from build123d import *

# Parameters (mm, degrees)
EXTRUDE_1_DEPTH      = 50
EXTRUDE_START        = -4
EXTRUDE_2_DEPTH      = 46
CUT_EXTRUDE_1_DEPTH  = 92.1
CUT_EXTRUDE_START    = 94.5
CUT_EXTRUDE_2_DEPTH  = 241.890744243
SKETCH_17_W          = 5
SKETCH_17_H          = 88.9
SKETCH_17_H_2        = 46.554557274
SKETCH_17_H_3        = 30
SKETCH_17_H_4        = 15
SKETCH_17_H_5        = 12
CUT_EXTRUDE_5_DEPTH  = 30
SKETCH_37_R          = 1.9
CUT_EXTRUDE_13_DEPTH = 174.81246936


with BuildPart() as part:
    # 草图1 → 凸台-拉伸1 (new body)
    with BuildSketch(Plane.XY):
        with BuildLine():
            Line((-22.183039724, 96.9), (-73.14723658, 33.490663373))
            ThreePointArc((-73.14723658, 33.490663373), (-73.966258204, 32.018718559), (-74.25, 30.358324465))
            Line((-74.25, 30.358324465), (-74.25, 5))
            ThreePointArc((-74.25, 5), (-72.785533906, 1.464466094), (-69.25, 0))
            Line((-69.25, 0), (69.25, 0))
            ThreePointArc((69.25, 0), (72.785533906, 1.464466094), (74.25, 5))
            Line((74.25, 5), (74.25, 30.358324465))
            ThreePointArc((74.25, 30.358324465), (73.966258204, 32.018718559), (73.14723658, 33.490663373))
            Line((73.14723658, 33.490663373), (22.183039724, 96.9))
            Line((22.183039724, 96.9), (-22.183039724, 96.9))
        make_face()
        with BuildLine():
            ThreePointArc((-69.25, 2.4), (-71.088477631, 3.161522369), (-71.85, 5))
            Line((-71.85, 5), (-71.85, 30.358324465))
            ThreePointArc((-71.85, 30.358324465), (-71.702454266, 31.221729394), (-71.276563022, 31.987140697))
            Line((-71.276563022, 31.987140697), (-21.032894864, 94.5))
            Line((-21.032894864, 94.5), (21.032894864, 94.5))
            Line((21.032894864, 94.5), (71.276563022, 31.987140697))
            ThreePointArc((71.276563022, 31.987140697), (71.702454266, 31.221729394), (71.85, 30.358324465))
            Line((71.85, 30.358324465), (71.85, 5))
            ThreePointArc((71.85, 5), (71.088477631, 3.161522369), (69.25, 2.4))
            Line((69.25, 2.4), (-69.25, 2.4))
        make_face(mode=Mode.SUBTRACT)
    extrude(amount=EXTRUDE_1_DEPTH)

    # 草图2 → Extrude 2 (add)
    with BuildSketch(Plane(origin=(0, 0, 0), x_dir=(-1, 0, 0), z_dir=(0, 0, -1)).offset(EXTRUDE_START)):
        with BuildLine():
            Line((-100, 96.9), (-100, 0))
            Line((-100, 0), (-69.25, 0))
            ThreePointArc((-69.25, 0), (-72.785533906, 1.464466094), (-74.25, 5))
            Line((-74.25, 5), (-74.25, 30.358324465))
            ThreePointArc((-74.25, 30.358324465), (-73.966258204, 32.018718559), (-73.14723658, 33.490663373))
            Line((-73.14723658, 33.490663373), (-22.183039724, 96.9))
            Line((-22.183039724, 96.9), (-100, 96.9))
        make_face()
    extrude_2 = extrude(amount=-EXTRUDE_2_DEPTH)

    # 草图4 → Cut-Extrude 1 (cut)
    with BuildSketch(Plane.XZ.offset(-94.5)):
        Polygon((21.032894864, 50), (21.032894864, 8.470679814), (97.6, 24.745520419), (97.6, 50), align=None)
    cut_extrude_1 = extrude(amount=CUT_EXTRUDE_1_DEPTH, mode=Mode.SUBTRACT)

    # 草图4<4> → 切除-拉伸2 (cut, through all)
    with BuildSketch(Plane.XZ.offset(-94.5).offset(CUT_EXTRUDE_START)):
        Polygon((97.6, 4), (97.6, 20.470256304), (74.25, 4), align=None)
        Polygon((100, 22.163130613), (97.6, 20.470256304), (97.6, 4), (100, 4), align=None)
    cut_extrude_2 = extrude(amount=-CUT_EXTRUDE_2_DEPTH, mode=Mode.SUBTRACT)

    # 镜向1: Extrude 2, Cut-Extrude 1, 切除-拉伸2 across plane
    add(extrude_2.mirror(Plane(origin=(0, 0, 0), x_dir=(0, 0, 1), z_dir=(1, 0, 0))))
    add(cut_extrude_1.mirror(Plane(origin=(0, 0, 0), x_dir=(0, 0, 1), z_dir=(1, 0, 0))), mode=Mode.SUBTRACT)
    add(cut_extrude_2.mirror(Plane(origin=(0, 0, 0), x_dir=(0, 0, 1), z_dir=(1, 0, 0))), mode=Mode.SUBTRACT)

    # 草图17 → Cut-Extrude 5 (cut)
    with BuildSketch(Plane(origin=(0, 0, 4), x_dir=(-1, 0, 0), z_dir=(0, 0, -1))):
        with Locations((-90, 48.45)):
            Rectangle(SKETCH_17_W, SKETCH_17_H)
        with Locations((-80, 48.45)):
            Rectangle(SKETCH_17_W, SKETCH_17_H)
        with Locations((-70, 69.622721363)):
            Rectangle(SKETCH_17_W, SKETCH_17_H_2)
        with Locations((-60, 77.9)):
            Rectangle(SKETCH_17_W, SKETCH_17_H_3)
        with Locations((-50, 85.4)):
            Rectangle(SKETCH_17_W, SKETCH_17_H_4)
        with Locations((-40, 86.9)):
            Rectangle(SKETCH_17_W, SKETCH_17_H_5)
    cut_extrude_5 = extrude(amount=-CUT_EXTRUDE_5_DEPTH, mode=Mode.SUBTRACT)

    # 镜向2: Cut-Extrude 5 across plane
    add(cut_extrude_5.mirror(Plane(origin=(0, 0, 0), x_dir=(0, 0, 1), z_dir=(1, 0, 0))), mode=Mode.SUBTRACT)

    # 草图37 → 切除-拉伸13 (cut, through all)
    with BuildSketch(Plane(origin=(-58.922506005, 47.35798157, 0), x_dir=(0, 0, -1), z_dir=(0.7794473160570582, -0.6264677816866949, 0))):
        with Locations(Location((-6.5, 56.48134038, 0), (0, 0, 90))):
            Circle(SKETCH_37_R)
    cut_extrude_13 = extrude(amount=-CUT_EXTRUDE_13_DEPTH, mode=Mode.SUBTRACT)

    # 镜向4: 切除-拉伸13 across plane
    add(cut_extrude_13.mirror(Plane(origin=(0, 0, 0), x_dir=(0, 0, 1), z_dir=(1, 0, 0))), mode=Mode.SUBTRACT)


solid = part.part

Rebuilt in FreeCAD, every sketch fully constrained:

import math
import FreeCAD as App
import Part
import Sketcher
Q = App.Units.Quantity


def add_polygon(sketch, points):
    """Adds a closed chain of lines whose ends are joined by coincident constraints."""
    first, n = sketch.GeometryCount, len(points)
    for a, b in zip(points, points[1:] + points[:1]):
        sketch.addGeometry(Part.LineSegment(App.Vector(*a, 0), App.Vector(*b, 0)), False)
    for i in range(n):
        sketch.addConstraint(Sketcher.Constraint("Coincident", first + i, 2, first + (i + 1) % n, 1))

doc = App.newDocument("Part")
params = doc.addObject("Spreadsheet::Sheet", "Params")
for row, (alias, value) in enumerate([
    ("sketch1_radius", "5 mm"),
    ("sketch1_radius2", "2.6 mm"),
    ("sketch1_width", "138.5 mm"),
    ("pad1_length", "50 mm"),
    ("sketch2_radius", "5 mm"),
    ("sketch2_height", "96.9 mm"),
    ("sketch2_width", "30.75 mm"),
    ("pad2_length", "46 mm"),
    ("pocket1_length", "92.1 mm"),
    ("sketch4_width", "25.75 mm"),
    ("sketch5_width", "5 mm"),
    ("sketch5_height", "30 mm"),
    ("sketch5_height2", "15 mm"),
    ("sketch5_height3", "12 mm"),
    ("sketch5_height4", "88.9 mm"),
    ("pocket3_length", "30 mm"),
    ("sketch6_diameter", "3.8 mm"),
], start=1):
    params.set(f"A{row}", alias)
    params.set(f"B{row}", "=" + value)
    params.setAlias(f"B{row}", alias)

body = doc.addObject("PartDesign::Body", "Body")

# Sketch on XY plane
sketch1 = doc.addObject("Sketcher::SketchObject", "Sketch")
body.addObject(sketch1)
sketch1.AttachmentSupport = (doc.XY_Plane, [""])
sketch1.MapMode = "FlatFace"
sketch1.addGeometry(Part.LineSegment(App.Vector(-22.2, 96.9, 0), App.Vector(-73.1, 33.5, 0)), False)
sketch1.addGeometry(Part.ArcOfCircle(Part.Circle(App.Vector(-69.2, 30.4, 0), App.Vector(0, 0, 1), 5), math.radians(141), math.radians(180)), False)
sketch1.addGeometry(Part.LineSegment(App.Vector(-74.2, 30.4, 0), App.Vector(-74.2, 5, 0)), False)
sketch1.addGeometry(Part.ArcOfCircle(Part.Circle(App.Vector(-69.2, 5, 0), App.Vector(0, 0, 1), 5), math.radians(180), math.radians(270)), False)
sketch1.addGeometry(Part.LineSegment(App.Vector(-69.2, 0, 0), App.Vector(69.2, 0, 0)), False)
sketch1.addGeometry(Part.ArcOfCircle(Part.Circle(App.Vector(69.2, 5, 0), App.Vector(0, 0, 1), 5), math.radians(-90), math.radians(0)), False)
sketch1.addGeometry(Part.LineSegment(App.Vector(74.2, 5, 0), App.Vector(74.2, 30.4, 0)), False)
sketch1.addGeometry(Part.ArcOfCircle(Part.Circle(App.Vector(69.2, 30.4, 0), App.Vector(0, 0, 1), 5), math.radians(0), math.radians(39)), False)
sketch1.addGeometry(Part.LineSegment(App.Vector(73.1, 33.5, 0), App.Vector(22.2, 96.9, 0)), False)
sketch1.addGeometry(Part.LineSegment(App.Vector(22.2, 96.9, 0), App.Vector(-22.2, 96.9, 0)), False)
sketch1.addGeometry(Part.LineSegment(App.Vector(69.2, 2.4, 0), App.Vector(-69.2, 2.4, 0)), False)
sketch1.addGeometry(Part.ArcOfCircle(Part.Circle(App.Vector(-69.2, 5, 0), App.Vector(0, 0, 1), 2.6), math.radians(180), math.radians(270)), False)
sketch1.addGeometry(Part.LineSegment(App.Vector(-71.8, 5, 0), App.Vector(-71.8, 30.4, 0)), False)
sketch1.addGeometry(Part.ArcOfCircle(Part.Circle(App.Vector(-69.2, 30.4, 0), App.Vector(0, 0, 1), 2.6), math.radians(141), math.radians(180)), False)
sketch1.addGeometry(Part.LineSegment(App.Vector(-71.3, 32, 0), App.Vector(-21, 94.5, 0)), False)
sketch1.addGeometry(Part.LineSegment(App.Vector(-21, 94.5, 0), App.Vector(21, 94.5, 0)), False)
sketch1.addGeometry(Part.LineSegment(App.Vector(21, 94.5, 0), App.Vector(71.3, 32, 0)), False)
sketch1.addGeometry(Part.ArcOfCircle(Part.Circle(App.Vector(69.2, 30.4, 0), App.Vector(0, 0, 1), 2.6), math.radians(0), math.radians(39)), False)
sketch1.addGeometry(Part.LineSegment(App.Vector(71.8, 30.4, 0), App.Vector(71.8, 5, 0)), False)
sketch1.addGeometry(Part.ArcOfCircle(Part.Circle(App.Vector(69.2, 5, 0), App.Vector(0, 0, 1), 2.6), math.radians(-90), math.radians(0)), False)
sketch1.addConstraint(Sketcher.Constraint("Tangent", 0, 2, 1, 1))
sketch1.addConstraint(Sketcher.Constraint("Tangent", 1, 2, 2, 1))
sketch1.addConstraint(Sketcher.Constraint("Tangent", 2, 2, 3, 1))
sketch1.addConstraint(Sketcher.Constraint("Tangent", 3, 2, 4, 1))
sketch1.addConstraint(Sketcher.Constraint("Tangent", 4, 2, 5, 1))
sketch1.addConstraint(Sketcher.Constraint("Tangent", 5, 2, 6, 1))
sketch1.addConstraint(Sketcher.Constraint("Tangent", 6, 2, 7, 1))
sketch1.addConstraint(Sketcher.Constraint("Tangent", 7, 2, 8, 1))
sketch1.addConstraint(Sketcher.Constraint("Coincident", 8, 2, 9, 1))
sketch1.addConstraint(Sketcher.Constraint("Coincident", 9, 2, 0, 1))
sketch1.addConstraint(Sketcher.Constraint("Tangent", 10, 2, 11, 2))
sketch1.addConstraint(Sketcher.Constraint("Tangent", 11, 1, 12, 1))
sketch1.addConstraint(Sketcher.Constraint("Tangent", 12, 2, 13, 2))
sketch1.addConstraint(Sketcher.Constraint("Tangent", 13, 1, 14, 1))
sketch1.addConstraint(Sketcher.Constraint("Coincident", 14, 2, 15, 1))
sketch1.addConstraint(Sketcher.Constraint("Coincident", 15, 2, 16, 1))
sketch1.addConstraint(Sketcher.Constraint("Tangent", 16, 2, 17, 2))
sketch1.addConstraint(Sketcher.Constraint("Tangent", 17, 1, 18, 1))
sketch1.addConstraint(Sketcher.Constraint("Tangent", 18, 2, 19, 2))
sketch1.addConstraint(Sketcher.Constraint("Tangent", 19, 1, 10, 1))
sketch1.addConstraint(Sketcher.Constraint("Vertical", 2))
sketch1.addConstraint(Sketcher.Constraint("Horizontal", 4))
sketch1.addConstraint(Sketcher.Constraint("Vertical", 6))
sketch1.addConstraint(Sketcher.Constraint("Horizontal", 9))
sketch1.addConstraint(Sketcher.Constraint("Horizontal", 10))
sketch1.addConstraint(Sketcher.Constraint("Vertical", 12))
sketch1.addConstraint(Sketcher.Constraint("Horizontal", 15))
sketch1.addConstraint(Sketcher.Constraint("Vertical", 18))
sketch1.addConstraint(Sketcher.Constraint("Coincident", 11, 3, 3, 3))
sketch1.addConstraint(Sketcher.Constraint("Coincident", 13, 3, 1, 3))
sketch1.addConstraint(Sketcher.Constraint("Coincident", 17, 3, 7, 3))
sketch1.addConstraint(Sketcher.Constraint("Coincident", 19, 3, 5, 3))
sketch1.addConstraint(Sketcher.Constraint("Equal", 1, 3))
sketch1.addConstraint(Sketcher.Constraint("Equal", 3, 5))
sketch1.addConstraint(Sketcher.Constraint("Equal", 5, 7))
sketch1.addConstraint(Sketcher.Constraint("Symmetric", 3, 2, 4, 2, -1, 1))
sketch1.addConstraint(Sketcher.Constraint("Symmetric", 0, 2, 7, 2, -2))
sketch1.addConstraint(Sketcher.Constraint("Parallel", 0, 14))
sketch1.addConstraint(Sketcher.Constraint("Parallel", 8, 16))
sketch1.addConstraint(Sketcher.Constraint("Radius", 1, 5.0))
sketch1.addConstraint(Sketcher.Constraint("Radius", 11, 2.6))
sketch1.addConstraint(Sketcher.Constraint("DistanceX", 4, 1, 4, 2, 138.5))
sketch1.addConstraint(Sketcher.Constraint("DistanceY", -1, 1, 8, 2, 96.9))
sketch1.addConstraint(Sketcher.Constraint("DistanceY", -1, 1, 14, 2, 94.5))
sketch1.addConstraint(Sketcher.Constraint("Angle", 0, Q("-128.79 deg")))
sketch1.addConstraint(Sketcher.Constraint("DistanceX", 9, 2, 9, 1, 44.366079))
sketch1.setExpression("Constraints[39]", "Params.sketch1_radius")
sketch1.setExpression("Constraints[40]", "Params.sketch1_radius2")
sketch1.setExpression("Constraints[41]", "Params.sketch1_width")
pad1 = doc.addObject("PartDesign::Pad", "Pad")
body.addObject(pad1)
pad1.Profile = sketch1
pad1.setExpression("Length", "Params.pad1_length")

# Sketch on XY plane
sketch2 = doc.addObject("Sketcher::SketchObject", "Sketch001")
body.addObject(sketch2)
sketch2.AttachmentSupport = (doc.XY_Plane, [""])
sketch2.MapMode = "FlatFace"
sketch2.AttachmentOffset = App.Placement(App.Vector(0, 0, 4), App.Rotation())
sketch2.addGeometry(Part.LineSegment(App.Vector(100, 96.9, 0), App.Vector(100, 0, 0)), False)
sketch2.addGeometry(Part.LineSegment(App.Vector(100, 0, 0), App.Vector(69.2, 0, 0)), False)
sketch2.addGeometry(Part.ArcOfCircle(Part.Circle(App.Vector(69.2, 5, 0), App.Vector(0, 0, 1), 5), math.radians(-90), math.radians(0)), False)
sketch2.addGeometry(Part.LineSegment(App.Vector(74.2, 5, 0), App.Vector(74.2, 30.4, 0)), False)
sketch2.addGeometry(Part.ArcOfCircle(Part.Circle(App.Vector(69.2, 30.4, 0), App.Vector(0, 0, 1), 5), math.radians(0), math.radians(39)), False)
sketch2.addGeometry(Part.LineSegment(App.Vector(73.1, 33.5, 0), App.Vector(22.2, 96.9, 0)), False)
sketch2.addGeometry(Part.LineSegment(App.Vector(22.2, 96.9, 0), App.Vector(100, 96.9, 0)), False)
sketch2.addConstraint(Sketcher.Constraint("Coincident", 0, 2, 1, 1))
sketch2.addConstraint(Sketcher.Constraint("Tangent", 1, 2, 2, 1))
sketch2.addConstraint(Sketcher.Constraint("Tangent", 2, 2, 3, 1))
sketch2.addConstraint(Sketcher.Constraint("Tangent", 3, 2, 4, 1))
sketch2.addConstraint(Sketcher.Constraint("Tangent", 4, 2, 5, 1))
sketch2.addConstraint(Sketcher.Constraint("Coincident", 5, 2, 6, 1))
sketch2.addConstraint(Sketcher.Constraint("Coincident", 6, 2, 0, 1))
sketch2.addConstraint(Sketcher.Constraint("Vertical", 0))
sketch2.addConstraint(Sketcher.Constraint("Horizontal", 1))
sketch2.addConstraint(Sketcher.Constraint("Vertical", 3))
sketch2.addConstraint(Sketcher.Constraint("Horizontal", 6))
sketch2.addConstraint(Sketcher.Constraint("Equal", 2, 4))
sketch2.addConstraint(Sketcher.Constraint("PointOnObject", 0, 2, -1))
sketch2.addConstraint(Sketcher.Constraint("Radius", 2, 5.0))
sketch2.addConstraint(Sketcher.Constraint("DistanceY", 0, 2, 0, 1, 96.9))
sketch2.addConstraint(Sketcher.Constraint("DistanceX", -1, 1, 0, 2, 100.0))
sketch2.addConstraint(Sketcher.Constraint("DistanceX", 1, 2, 1, 1, 30.75))
sketch2.addConstraint(Sketcher.Constraint("Angle", 5, Q("128.79 deg")))
sketch2.addConstraint(Sketcher.Constraint("DistanceX", 6, 1, 6, 2, 77.81696))
sketch2.setExpression("Constraints[13]", "Params.sketch2_radius")
sketch2.setExpression("Constraints[14]", "Params.sketch2_height")
sketch2.setExpression("Constraints[16]", "Params.sketch2_width")
pad2 = doc.addObject("PartDesign::Pad", "Pad001")
body.addObject(pad2)
pad2.Profile = sketch2
pad2.setExpression("Length", "Params.pad2_length")

# Sketch on XZ plane
sketch3 = doc.addObject("Sketcher::SketchObject", "Sketch002")
body.addObject(sketch3)
sketch3.AttachmentSupport = (doc.XZ_Plane, [""])
sketch3.MapMode = "FlatFace"
sketch3.AttachmentOffset = App.Placement(App.Vector(0, 0, -94.5), App.Rotation())
add_polygon(sketch3, [(21, 50), (21, 8), (98, 25), (98, 50)])  # lines 0-3
sketch3.addConstraint(Sketcher.Constraint("Vertical", 0))
sketch3.addConstraint(Sketcher.Constraint("Vertical", 2))
sketch3.addConstraint(Sketcher.Constraint("Horizontal", 3))
sketch3.addConstraint(Sketcher.Constraint("Angle", 1, Q("12 deg")))
sketch3.addConstraint(Sketcher.Constraint("DistanceY", -1, 1, 2, 2, 50.0))
sketch3.addConstraint(Sketcher.Constraint("DistanceX", -1, 1, 1, 2, 97.6))
sketch3.addConstraint(Sketcher.Constraint("DistanceY", 0, 2, 0, 1, 41.52932))
sketch3.addConstraint(Sketcher.Constraint("DistanceY", 2, 1, 2, 2, 25.25448))
pocket1 = doc.addObject("PartDesign::Pocket", "Pocket")
body.addObject(pocket1)
pocket1.Profile = sketch3
pocket1.setExpression("Length", "Params.pocket1_length")
pocket1.Reversed = True

# Sketch on XZ plane
sketch4 = doc.addObject("Sketcher::SketchObject", "Sketch003")
body.addObject(sketch4)
sketch4.AttachmentSupport = (doc.XZ_Plane, [""])
sketch4.MapMode = "FlatFace"
add_polygon(sketch4, [(97.6, 20.5), (74.2, 4), (100, 4), (100, 22.2)])  # lines 0-3
sketch4.addConstraint(Sketcher.Constraint("Horizontal", 1))
sketch4.addConstraint(Sketcher.Constraint("Vertical", 2))
sketch4.addConstraint(Sketcher.Constraint("Parallel", 0, 3))
sketch4.addConstraint(Sketcher.Constraint("DistanceY", -1, 1, 0, 2, 4.0))
sketch4.addConstraint(Sketcher.Constraint("DistanceX", -1, 1, 1, 2, 100.0))
sketch4.addConstraint(Sketcher.Constraint("DistanceX", 1, 1, 1, 2, 25.75))
sketch4.addConstraint(Sketcher.Constraint("DistanceX", -1, 1, 3, 2, 97.6))
sketch4.addConstraint(Sketcher.Constraint("DistanceY", 2, 1, 2, 2, 18.163131))
sketch4.setExpression("Constraints[9]", "Params.sketch4_width")
pocket2 = doc.addObject("PartDesign::Pocket", "Pocket001")
body.addObject(pocket2)
pocket2.Profile = sketch4
pocket2.Type = "ThroughAll"
doc.recompute()

mirrored = doc.addObject("PartDesign::Mirrored", "Mirrored")
body.addObject(mirrored)
mirrored.Originals = [pad2, pocket1, pocket2]
mirrored.MirrorPlane = (doc.YZ_Plane, [""])
body.Tip = mirrored

# Sketch on XY plane
sketch5 = doc.addObject("Sketcher::SketchObject", "Sketch004")
body.addObject(sketch5)
sketch5.AttachmentSupport = (doc.XY_Plane, [""])
sketch5.MapMode = "FlatFace"
sketch5.AttachmentOffset = App.Placement(App.Vector(0, 0, 4), App.Rotation())
add_polygon(sketch5, [(92, 93), (92, 4), (88, 4), (88, 93)])  # lines 0-3
add_polygon(sketch5, [(82, 93), (82, 4), (78, 4), (78, 93)])  # lines 4-7
add_polygon(sketch5, [(72, 93), (72, 46), (68, 46), (68, 93)])  # lines 8-11
add_polygon(sketch5, [(62, 93), (62, 63), (58, 63), (58, 93)])  # lines 12-15
add_polygon(sketch5, [(52, 93), (52, 78), (48, 78), (48, 93)])  # lines 16-19
add_polygon(sketch5, [(42, 93), (42, 81), (38, 81), (38, 93)])  # lines 20-23
sketch5.addConstraint(Sketcher.Constraint("Vertical", 0))
sketch5.addConstraint(Sketcher.Constraint("Horizontal", 1))
sketch5.addConstraint(Sketcher.Constraint("Vertical", 2))
sketch5.addConstraint(Sketcher.Constraint("Horizontal", 3))
sketch5.addConstraint(Sketcher.Constraint("Vertical", 4))
sketch5.addConstraint(Sketcher.Constraint("Horizontal", 5))
sketch5.addConstraint(Sketcher.Constraint("Vertical", 6))
sketch5.addConstraint(Sketcher.Constraint("Horizontal", 7))
sketch5.addConstraint(Sketcher.Constraint("Vertical", 8))
sketch5.addConstraint(Sketcher.Constraint("Horizontal", 9))
sketch5.addConstraint(Sketcher.Constraint("Vertical", 10))
sketch5.addConstraint(Sketcher.Constraint("Horizontal", 11))
sketch5.addConstraint(Sketcher.Constraint("Vertical", 12))
sketch5.addConstraint(Sketcher.Constraint("Horizontal", 13))
sketch5.addConstraint(Sketcher.Constraint("Vertical", 14))
sketch5.addConstraint(Sketcher.Constraint("Horizontal", 15))
sketch5.addConstraint(Sketcher.Constraint("Vertical", 16))
sketch5.addConstraint(Sketcher.Constraint("Horizontal", 17))
sketch5.addConstraint(Sketcher.Constraint("Vertical", 18))
sketch5.addConstraint(Sketcher.Constraint("Horizontal", 19))
sketch5.addConstraint(Sketcher.Constraint("Vertical", 20))
sketch5.addConstraint(Sketcher.Constraint("Horizontal", 21))
sketch5.addConstraint(Sketcher.Constraint("Vertical", 22))
sketch5.addConstraint(Sketcher.Constraint("Horizontal", 23))
sketch5.addConstraint(Sketcher.Constraint("Horizontal", 1, 2, 4, 2))
sketch5.addConstraint(Sketcher.Constraint("Horizontal", 3, 2, 6, 2))
sketch5.addConstraint(Sketcher.Constraint("Horizontal", 7, 2, 10, 2))
sketch5.addConstraint(Sketcher.Constraint("Horizontal", 11, 2, 14, 2))
sketch5.addConstraint(Sketcher.Constraint("Horizontal", 15, 2, 18, 2))
sketch5.addConstraint(Sketcher.Constraint("Horizontal", 19, 2, 22, 2))
sketch5.addConstraint(Sketcher.Constraint("Equal", 3, 5))
sketch5.addConstraint(Sketcher.Constraint("Equal", 7, 9))
sketch5.addConstraint(Sketcher.Constraint("Equal", 11, 13))
sketch5.addConstraint(Sketcher.Constraint("Equal", 15, 17))
sketch5.addConstraint(Sketcher.Constraint("Equal", 19, 21))
sketch5.addConstraint(Sketcher.Constraint("DistanceX", 1, 2, 1, 1, 5.0))
sketch5.addConstraint(Sketcher.Constraint("DistanceY", 12, 2, 12, 1, 30.0))
sketch5.addConstraint(Sketcher.Constraint("DistanceY", 16, 2, 16, 1, 15.0))
sketch5.addConstraint(Sketcher.Constraint("DistanceY", 20, 2, 20, 1, 12.0))
sketch5.addConstraint(Sketcher.Constraint("DistanceY", 0, 2, 0, 1, 88.9))
sketch5.addConstraint(Sketcher.Constraint("DistanceY", -1, 1, 0, 2, 4.0))
sketch5.addConstraint(Sketcher.Constraint("DistanceX", 4, 2, 1, 2, 5.0))
sketch5.addConstraint(Sketcher.Constraint("DistanceX", 8, 2, 5, 2, 5.0))
sketch5.addConstraint(Sketcher.Constraint("DistanceX", 12, 2, 9, 2, 5.0))
sketch5.addConstraint(Sketcher.Constraint("DistanceX", 16, 2, 14, 2, 5.0))
sketch5.addConstraint(Sketcher.Constraint("DistanceX", 20, 2, 17, 2, 5.0))
sketch5.addConstraint(Sketcher.Constraint("DistanceX", -1, 1, 0, 2, 92.5))
sketch5.addConstraint(Sketcher.Constraint("DistanceY", 8, 2, 8, 1, 46.554557))
sketch5.setExpression("Constraints[59]", "Params.sketch5_width")
sketch5.setExpression("Constraints[60]", "Params.sketch5_height")
sketch5.setExpression("Constraints[61]", "Params.sketch5_height2")
sketch5.setExpression("Constraints[62]", "Params.sketch5_height3")
sketch5.setExpression("Constraints[63]", "Params.sketch5_height4")
pocket3 = doc.addObject("PartDesign::Pocket", "Pocket002")
body.addObject(pocket3)
pocket3.Profile = sketch5
pocket3.setExpression("Length", "Params.pocket3_length")
pocket3.Reversed = True
doc.recompute()

mirrored2 = doc.addObject("PartDesign::Mirrored", "Mirrored001")
body.addObject(mirrored2)
mirrored2.Originals = [pocket3]
mirrored2.MirrorPlane = (doc.YZ_Plane, [""])
body.Tip = mirrored2

# Sketch on an angled plane
sketch6 = doc.addObject("Sketcher::SketchObject", "Sketch005")
body.addObject(sketch6)
sketch6.Placement = App.Placement(App.Vector(-58.922506, 47.357982, 0), App.Rotation(App.Vector(0, 0, -1), App.Vector(0.626467782, 0.779447316, 0), App.Vector(0.779447316, -0.626467782, 0), "ZXY"))
sketch6.addGeometry(Part.Circle(App.Vector(-6.5, 56.5, 0), App.Vector(0, 0, 1), 1.9), False)
sketch6.addConstraint(Sketcher.Constraint("Diameter", 0, 3.8))
sketch6.addConstraint(Sketcher.Constraint("DistanceX", 0, 3, -1, 1, 6.5))
sketch6.addConstraint(Sketcher.Constraint("DistanceY", -1, 1, 0, 3, 56.48134))
sketch6.setExpression("Constraints[0]", "Params.sketch6_diameter")
pocket4 = doc.addObject("PartDesign::Pocket", "Pocket003")
body.addObject(pocket4)
pocket4.Profile = sketch6
pocket4.Type = "ThroughAll"
doc.recompute()

mirrored3 = doc.addObject("PartDesign::Mirrored", "Mirrored002")
body.addObject(mirrored3)
mirrored3.Originals = [pocket4]
mirrored3.MirrorPlane = (doc.YZ_Plane, [""])
body.Tip = mirrored3

doc.recompute()
